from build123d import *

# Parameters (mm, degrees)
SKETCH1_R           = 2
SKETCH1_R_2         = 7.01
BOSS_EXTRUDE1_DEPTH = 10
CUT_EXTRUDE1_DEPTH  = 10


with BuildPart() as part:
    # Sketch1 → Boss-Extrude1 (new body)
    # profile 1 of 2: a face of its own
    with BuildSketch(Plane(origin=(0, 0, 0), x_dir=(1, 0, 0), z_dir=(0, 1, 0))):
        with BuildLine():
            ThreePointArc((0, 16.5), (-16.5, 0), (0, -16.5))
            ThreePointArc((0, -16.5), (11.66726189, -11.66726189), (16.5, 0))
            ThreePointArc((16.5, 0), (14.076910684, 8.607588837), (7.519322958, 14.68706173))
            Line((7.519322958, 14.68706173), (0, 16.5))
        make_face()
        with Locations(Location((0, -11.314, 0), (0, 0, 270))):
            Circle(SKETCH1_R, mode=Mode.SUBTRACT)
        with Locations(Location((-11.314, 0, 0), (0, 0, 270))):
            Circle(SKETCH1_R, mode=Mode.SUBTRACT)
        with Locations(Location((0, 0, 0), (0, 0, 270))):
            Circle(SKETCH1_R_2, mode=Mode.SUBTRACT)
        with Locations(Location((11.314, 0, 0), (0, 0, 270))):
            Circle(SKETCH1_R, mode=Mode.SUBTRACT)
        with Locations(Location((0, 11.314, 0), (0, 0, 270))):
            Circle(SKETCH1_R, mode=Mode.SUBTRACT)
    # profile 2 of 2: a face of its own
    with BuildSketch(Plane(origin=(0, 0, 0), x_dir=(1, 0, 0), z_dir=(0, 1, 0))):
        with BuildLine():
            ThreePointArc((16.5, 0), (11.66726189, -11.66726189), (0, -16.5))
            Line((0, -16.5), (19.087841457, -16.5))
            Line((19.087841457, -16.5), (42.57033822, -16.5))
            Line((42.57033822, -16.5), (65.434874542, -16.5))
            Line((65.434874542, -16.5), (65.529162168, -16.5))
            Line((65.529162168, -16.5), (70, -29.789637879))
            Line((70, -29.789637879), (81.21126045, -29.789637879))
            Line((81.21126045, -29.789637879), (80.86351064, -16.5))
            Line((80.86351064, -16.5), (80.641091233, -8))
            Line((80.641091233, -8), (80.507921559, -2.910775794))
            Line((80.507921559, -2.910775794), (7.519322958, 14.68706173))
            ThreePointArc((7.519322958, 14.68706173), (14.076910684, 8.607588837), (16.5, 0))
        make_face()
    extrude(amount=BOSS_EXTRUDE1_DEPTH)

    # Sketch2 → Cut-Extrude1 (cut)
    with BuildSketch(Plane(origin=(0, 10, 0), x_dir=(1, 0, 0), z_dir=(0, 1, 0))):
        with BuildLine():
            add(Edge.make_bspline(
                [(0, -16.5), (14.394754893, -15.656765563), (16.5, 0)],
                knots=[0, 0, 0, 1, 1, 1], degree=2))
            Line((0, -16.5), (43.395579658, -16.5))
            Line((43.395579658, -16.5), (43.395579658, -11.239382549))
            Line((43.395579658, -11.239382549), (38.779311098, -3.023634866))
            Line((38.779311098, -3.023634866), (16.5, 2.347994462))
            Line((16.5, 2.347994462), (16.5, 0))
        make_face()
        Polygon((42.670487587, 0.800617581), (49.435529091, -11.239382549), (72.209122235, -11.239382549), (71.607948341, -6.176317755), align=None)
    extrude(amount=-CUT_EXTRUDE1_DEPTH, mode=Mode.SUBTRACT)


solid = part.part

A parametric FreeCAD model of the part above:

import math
import FreeCAD as App
import Part
import Sketcher

V = App.Vector
Q = App.Units.Quantity

doc = App.newDocument("Part")
body = doc.addObject("PartDesign::Body", "Body")

sketch1 = doc.addObject("Sketcher::SketchObject", "Sketch")
body.addObject(sketch1)
sketch1.AttachmentSupport = (doc.XZ_Plane, [""])
sketch1.MapMode = "FlatFace"
sketch1.addGeometry(Part.ArcOfCircle(Part.Circle(V(0, 0, 0), V(0, 0, 1), 16.5), math.radians(90), math.radians(270)), False)
sketch1.addGeometry(Part.LineSegment(V(0, 16.5, 0), V(65.529162, 16.5, 0)), False)
sketch1.addGeometry(Part.LineSegment(V(65.529162, 16.5, 0), V(70, 29.789638, 0)), False)
sketch1.addGeometry(Part.LineSegment(V(70, 29.789638, 0), V(81.21126, 29.789638, 0)), False)
sketch1.addGeometry(Part.LineSegment(V(81.21126, 29.789638, 0), V(80.863511, 16.5, 0)), False)
sketch1.addGeometry(Part.LineSegment(V(80.863511, 16.5, 0), V(80.641091, 8, 0)), False)
sketch1.addGeometry(Part.LineSegment(V(80.641091, 8, 0), V(80.507922, 2.910776, 0)), False)
sketch1.addGeometry(Part.LineSegment(V(80.507922, 2.910776, 0), V(7.519323, -14.687062, 0)), False)
sketch1.addGeometry(Part.LineSegment(V(7.519323, -14.687062, 0), V(0, -16.5, 0)), False)
sketch1.addGeometry(Part.Circle(V(0, 11.314, 0), V(0, 0, 1), 2), False)
sketch1.addGeometry(Part.Circle(V(-11.314, 0, 0), V(0, 0, 1), 2), False)
sketch1.addGeometry(Part.Circle(V(0, 0, 0), V(0, 0, 1), 7.01), False)
sketch1.addGeometry(Part.Circle(V(11.314, 0, 0), V(0, 0, 1), 2), False)
sketch1.addGeometry(Part.Circle(V(0, -11.314, 0), V(0, 0, 1), 2), False)
sketch1.addConstraint(Sketcher.Constraint("Coincident", 0, 1, 1, 1))
sketch1.addConstraint(Sketcher.Constraint("Coincident", 1, 2, 2, 1))
sketch1.addConstraint(Sketcher.Constraint("Coincident", 2, 2, 3, 1))
sketch1.addConstraint(Sketcher.Constraint("Coincident", 3, 2, 4, 1))
sketch1.addConstraint(Sketcher.Constraint("Coincident", 4, 2, 5, 1))
sketch1.addConstraint(Sketcher.Constraint("Coincident", 5, 2, 6, 1))
sketch1.addConstraint(Sketcher.Constraint("Coincident", 6, 2, 7, 1))
sketch1.addConstraint(Sketcher.Constraint("Coincident", 7, 2, 8, 1))
sketch1.addConstraint(Sketcher.Constraint("Coincident", 8, 2, 0, 2))
sketch1.addConstraint(Sketcher.Constraint("Horizontal", 1))
sketch1.addConstraint(Sketcher.Constraint("Horizontal", 3))
sketch1.addConstraint(Sketcher.Constraint("Coincident", 0, 3, -1, 1))
sketch1.addConstraint(Sketcher.Constraint("Coincident", 11, 3, -1, 1))
sketch1.addConstraint(Sketcher.Constraint("PointOnObject", 9, 3, -2))
sketch1.addConstraint(Sketcher.Constraint("PointOnObject", 10, 3, -1))
sketch1.addConstraint(Sketcher.Constraint("PointOnObject", 12, 3, -1))
sketch1.addConstraint(Sketcher.Constraint("PointOnObject", 13, 3, -2))
sketch1.addConstraint(Sketcher.Constraint("PointOnObject", 0, 1, -2))
sketch1.addConstraint(Sketcher.Constraint("PointOnObject", 8, 2, -2))
sketch1.addConstraint(Sketcher.Constraint("Diameter", 9, Q("4 mm")))
sketch1.addConstraint(Sketcher.Constraint("Diameter", 10, Q("4 mm")))
sketch1.addConstraint(Sketcher.Constraint("Diameter", 12, Q("4 mm")))
sketch1.addConstraint(Sketcher.Constraint("Diameter", 13, Q("4 mm")))
sketch1.addConstraint(Sketcher.Constraint("Radius", 0, Q("16.5 mm")))
sketch1.addConstraint(Sketcher.Constraint("Diameter", 11, Q("14.02 mm")))
sketch1.addConstraint(Sketcher.Constraint("DistanceX", -1, 1, 2, 2, Q("70 mm")))
sketch1.addConstraint(Sketcher.Constraint("DistanceY", -1, 1, 5, 2, Q("8 mm")))
sketch1.addConstraint(Sketcher.Constraint("DistanceY", -1, 1, 4, 2, Q("16.5 mm")))
sketch1.addConstraint(Sketcher.Constraint("DistanceY", -1, 1, 9, 3, Q("11.314 mm")))
sketch1.addConstraint(Sketcher.Constraint("DistanceX", 10, 3, -1, 1, Q("11.314 mm")))
sketch1.addConstraint(Sketcher.Constraint("DistanceX", -1, 1, 12, 3, Q("11.314 mm")))
sketch1.addConstraint(Sketcher.Constraint("DistanceY", 13, 3, -1, 1, Q("11.314 mm")))
sketch1.addConstraint(Sketcher.Constraint("DistanceX", 3, 1, 3, 2, Q("11.21126 mm")))
sketch1.addConstraint(Sketcher.Constraint("DistanceX", 1, 2, 3, 2, Q("15.682098 mm")))
sketch1.addConstraint(Sketcher.Constraint("Distance", 5, Q("8.50291 mm")))
sketch1.addConstraint(Sketcher.Constraint("Distance", 8, Q("7.734789 mm")))
sketch1.addConstraint(Sketcher.Constraint("DistanceX", -1, 1, 4, 2, Q("80.863511 mm")))
sketch1.addConstraint(Sketcher.Constraint("DistanceX", -1, 1, 6, 2, Q("80.507922 mm")))
sketch1.addConstraint(Sketcher.Constraint("DistanceY", 7, 2, -1, 1, Q("14.687062 mm")))
sketch1.addConstraint(Sketcher.Constraint("Distance", 2, Q("14.021514 mm")))
sketch1.addConstraint(Sketcher.Constraint("Distance", 6, Q("5.090966 mm")))
pad1 = doc.addObject("PartDesign::Pad", "Pad")
body.addObject(pad1)
pad1.Profile = sketch1
pad1.Length = 10
pad1.Reversed = True

sketch2 = doc.addObject("Sketcher::SketchObject", "Sketch001")
body.addObject(sketch2)
sketch2.AttachmentSupport = (doc.XZ_Plane, [""])
sketch2.MapMode = "FlatFace"
sketch2.AttachmentOffset = App.Placement(V(0, 0, -10), App.Rotation())
sketch2.addGeometry(Part.BSplineCurve([V(0, 16.5, 0), V(14.394755, 15.656766, 0), V(16.5, 0, 0)], [3, 3], [0, 1], False, 2, [1, 1, 1], False), False)
sketch2.addGeometry(Part.LineSegment(V(0, 16.5, 0), V(43.39558, 16.5, 0)), False)
sketch2.addGeometry(Part.LineSegment(V(43.39558, 16.5, 0), V(43.39558, 11.239383, 0)), False)
sketch2.addGeometry(Part.LineSegment(V(43.39558, 11.239383, 0), V(38.779311, 3.023635, 0)), False)
sketch2.addGeometry(Part.LineSegment(V(38.779311, 3.023635, 0), V(16.5, -2.347994, 0)), False)
sketch2.addGeometry(Part.LineSegment(V(16.5, -2.347994, 0), V(16.5, 0, 0)), False)
sketch2.addGeometry(Part.LineSegment(V(42.670488, -0.800618, 0), V(49.435529, 11.239383, 0)), False)
sketch2.addGeometry(Part.LineSegment(V(49.435529, 11.239383, 0), V(72.209122, 11.239383, 0)), False)
sketch2.addGeometry(Part.LineSegment(V(72.209122, 11.239383, 0), V(71.607948, 6.176318, 0)), False)
sketch2.addGeometry(Part.LineSegment(V(71.607948, 6.176318, 0), V(42.670488, -0.800618, 0)), False)
sketch2.addConstraint(Sketcher.Constraint("Block", 0))
sketch2.addConstraint(Sketcher.Constraint("Coincident", 0, 1, 1, 1))
sketch2.addConstraint(Sketcher.Constraint("Coincident", 1, 2, 2, 1))
sketch2.addConstraint(Sketcher.Constraint("Coincident", 2, 2, 3, 1))
sketch2.addConstraint(Sketcher.Constraint("Coincident", 3, 2, 4, 1))
sketch2.addConstraint(Sketcher.Constraint("Coincident", 4, 2, 5, 1))
sketch2.addConstraint(Sketcher.Constraint("Coincident", 5, 2, 0, 2))
sketch2.addConstraint(Sketcher.Constraint("Coincident", 6, 2, 7, 1))
sketch2.addConstraint(Sketcher.Constraint("Coincident", 7, 2, 8, 1))
sketch2.addConstraint(Sketcher.Constraint("Coincident", 8, 2, 9, 1))
sketch2.addConstraint(Sketcher.Constraint("Coincident", 9, 2, 6, 1))
sketch2.addConstraint(Sketcher.Constraint("Horizontal", 1))
sketch2.addConstraint(Sketcher.Constraint("Vertical", 2))
sketch2.addConstraint(Sketcher.Constraint("Vertical", 5))
sketch2.addConstraint(Sketcher.Constraint("Horizontal", 7))
sketch2.addConstraint(Sketcher.Constraint("DistanceY", 9, 2, 2, 2, Q("12.04 mm")))
sketch2.addConstraint(Sketcher.Constraint("DistanceY", 9, 2, 6, 2, Q("12.04 mm")))
sketch2.addConstraint(Sketcher.Constraint("DistanceX", 1, 1, 1, 2, Q("43.39558 mm")))
sketch2.addConstraint(Sketcher.Constraint("Distance", 6, Q("13.810409 mm")))
sketch2.addConstraint(Sketcher.Constraint("Distance", 8, Q("5.098631 mm")))
sketch2.addConstraint(Sketcher.Constraint("DistanceX", 7, 1, 7, 2, Q("22.773593 mm")))
sketch2.addConstraint(Sketcher.Constraint("DistanceY", 2, 2, 2, 1, Q("5.260617 mm")))
sketch2.addConstraint(Sketcher.Constraint("DistanceY", 5, 1, 5, 2, Q("2.347994 mm")))
sketch2.addConstraint(Sketcher.Constraint("DistanceX", -1, 1, 3, 2, Q("38.779311 mm")))
sketch2.addConstraint(Sketcher.Constraint("DistanceX", -1, 1, 6, 2, Q("49.435529 mm")))
sketch2.addConstraint(Sketcher.Constraint("DistanceX", -1, 1, 8, 2, Q("71.607948 mm")))
sketch2.addConstraint(Sketcher.Constraint("DistanceY", 4, 2, 3, 2, Q("5.371629 mm")))
pocket1 = doc.addObject("PartDesign::Pocket", "Pocket")
body.addObject(pocket1)
pocket1.Profile = sketch2
pocket1.Length = 10
pocket1.Reversed = True

doc.recompute()
